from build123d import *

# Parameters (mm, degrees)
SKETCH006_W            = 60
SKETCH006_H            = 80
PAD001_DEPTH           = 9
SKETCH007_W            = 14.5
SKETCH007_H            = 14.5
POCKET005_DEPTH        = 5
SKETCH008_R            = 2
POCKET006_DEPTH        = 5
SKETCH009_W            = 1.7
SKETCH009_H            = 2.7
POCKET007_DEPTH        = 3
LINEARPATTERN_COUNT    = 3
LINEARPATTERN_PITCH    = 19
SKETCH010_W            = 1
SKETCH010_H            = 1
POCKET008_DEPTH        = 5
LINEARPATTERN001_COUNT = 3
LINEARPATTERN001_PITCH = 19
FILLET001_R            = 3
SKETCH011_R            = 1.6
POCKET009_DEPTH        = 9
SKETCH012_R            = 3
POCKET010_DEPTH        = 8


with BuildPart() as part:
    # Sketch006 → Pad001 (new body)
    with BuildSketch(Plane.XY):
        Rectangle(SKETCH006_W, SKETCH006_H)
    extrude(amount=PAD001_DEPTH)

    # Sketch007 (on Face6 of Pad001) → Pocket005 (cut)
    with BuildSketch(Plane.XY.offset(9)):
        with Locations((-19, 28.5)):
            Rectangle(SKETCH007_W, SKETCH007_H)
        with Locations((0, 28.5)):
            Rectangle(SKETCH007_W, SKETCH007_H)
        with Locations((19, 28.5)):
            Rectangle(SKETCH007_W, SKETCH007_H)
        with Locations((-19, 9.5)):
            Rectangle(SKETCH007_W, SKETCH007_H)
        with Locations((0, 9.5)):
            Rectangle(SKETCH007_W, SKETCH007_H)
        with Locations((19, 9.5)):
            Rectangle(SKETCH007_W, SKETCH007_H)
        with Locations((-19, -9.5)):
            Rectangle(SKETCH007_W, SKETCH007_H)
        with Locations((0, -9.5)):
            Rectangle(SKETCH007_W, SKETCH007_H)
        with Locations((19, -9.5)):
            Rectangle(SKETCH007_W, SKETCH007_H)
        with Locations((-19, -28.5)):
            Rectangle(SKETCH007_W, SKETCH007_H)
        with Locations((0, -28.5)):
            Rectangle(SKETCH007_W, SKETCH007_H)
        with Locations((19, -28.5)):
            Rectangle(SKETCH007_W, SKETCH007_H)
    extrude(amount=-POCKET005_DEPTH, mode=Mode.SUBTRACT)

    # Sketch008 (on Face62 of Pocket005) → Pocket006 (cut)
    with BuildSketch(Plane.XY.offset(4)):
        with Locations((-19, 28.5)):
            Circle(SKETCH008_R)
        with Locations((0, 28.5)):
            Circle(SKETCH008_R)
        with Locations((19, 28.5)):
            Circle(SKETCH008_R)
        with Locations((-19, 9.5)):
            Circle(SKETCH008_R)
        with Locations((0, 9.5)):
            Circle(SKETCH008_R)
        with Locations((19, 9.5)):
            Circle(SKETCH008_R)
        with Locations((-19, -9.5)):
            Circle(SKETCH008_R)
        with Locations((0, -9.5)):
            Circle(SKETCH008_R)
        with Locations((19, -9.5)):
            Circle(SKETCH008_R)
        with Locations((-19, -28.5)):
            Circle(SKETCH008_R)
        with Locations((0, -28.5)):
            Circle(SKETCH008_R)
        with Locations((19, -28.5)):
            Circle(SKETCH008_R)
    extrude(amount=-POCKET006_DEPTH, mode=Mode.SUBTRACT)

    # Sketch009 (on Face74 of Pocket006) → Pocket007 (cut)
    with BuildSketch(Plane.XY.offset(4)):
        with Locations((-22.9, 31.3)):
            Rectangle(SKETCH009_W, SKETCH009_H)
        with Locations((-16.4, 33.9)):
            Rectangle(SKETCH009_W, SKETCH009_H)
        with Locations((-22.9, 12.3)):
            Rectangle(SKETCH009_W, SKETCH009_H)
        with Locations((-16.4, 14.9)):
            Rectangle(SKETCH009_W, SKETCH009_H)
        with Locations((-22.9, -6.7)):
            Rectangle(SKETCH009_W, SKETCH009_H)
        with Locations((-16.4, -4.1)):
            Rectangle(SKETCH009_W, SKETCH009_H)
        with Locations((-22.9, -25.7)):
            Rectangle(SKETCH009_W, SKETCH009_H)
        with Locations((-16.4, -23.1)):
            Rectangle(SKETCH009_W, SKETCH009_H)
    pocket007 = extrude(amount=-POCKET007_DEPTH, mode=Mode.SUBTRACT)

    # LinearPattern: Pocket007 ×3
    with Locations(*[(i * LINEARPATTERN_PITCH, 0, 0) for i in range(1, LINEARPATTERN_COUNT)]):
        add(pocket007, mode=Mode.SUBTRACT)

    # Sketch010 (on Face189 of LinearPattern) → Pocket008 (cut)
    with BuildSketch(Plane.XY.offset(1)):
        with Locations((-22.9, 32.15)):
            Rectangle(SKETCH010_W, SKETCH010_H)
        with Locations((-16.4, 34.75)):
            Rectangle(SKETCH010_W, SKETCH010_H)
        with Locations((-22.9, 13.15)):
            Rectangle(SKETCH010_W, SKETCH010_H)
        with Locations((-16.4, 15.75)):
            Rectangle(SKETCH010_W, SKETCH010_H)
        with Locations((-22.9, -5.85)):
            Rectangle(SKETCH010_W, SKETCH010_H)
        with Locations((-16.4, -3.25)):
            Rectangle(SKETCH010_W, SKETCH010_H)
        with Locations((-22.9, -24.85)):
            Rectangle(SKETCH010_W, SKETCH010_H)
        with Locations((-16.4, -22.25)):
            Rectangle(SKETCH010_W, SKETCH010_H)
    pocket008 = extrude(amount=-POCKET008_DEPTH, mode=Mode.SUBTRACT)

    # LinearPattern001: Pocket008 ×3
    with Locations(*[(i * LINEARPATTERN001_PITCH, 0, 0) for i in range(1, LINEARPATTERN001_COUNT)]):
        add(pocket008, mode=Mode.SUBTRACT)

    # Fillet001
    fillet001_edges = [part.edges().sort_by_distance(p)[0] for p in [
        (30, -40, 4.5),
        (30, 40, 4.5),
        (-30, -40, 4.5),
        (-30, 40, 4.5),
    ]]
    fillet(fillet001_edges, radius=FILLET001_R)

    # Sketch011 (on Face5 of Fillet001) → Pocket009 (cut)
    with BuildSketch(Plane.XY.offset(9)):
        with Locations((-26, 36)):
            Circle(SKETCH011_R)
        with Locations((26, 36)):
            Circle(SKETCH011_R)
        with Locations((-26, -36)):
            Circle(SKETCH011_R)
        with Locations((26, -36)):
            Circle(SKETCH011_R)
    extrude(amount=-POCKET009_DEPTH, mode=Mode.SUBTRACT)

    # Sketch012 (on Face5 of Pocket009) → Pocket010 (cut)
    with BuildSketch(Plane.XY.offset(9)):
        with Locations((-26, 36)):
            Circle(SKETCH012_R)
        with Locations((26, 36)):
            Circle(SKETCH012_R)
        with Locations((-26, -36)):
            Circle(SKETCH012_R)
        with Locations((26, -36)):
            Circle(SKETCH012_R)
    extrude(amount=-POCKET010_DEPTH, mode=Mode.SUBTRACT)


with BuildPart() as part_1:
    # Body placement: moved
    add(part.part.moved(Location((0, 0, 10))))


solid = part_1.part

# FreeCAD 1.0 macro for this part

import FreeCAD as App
import Part
import Sketcher

V = App.Vector
Q = App.Units.Quantity


def edges_at(feature, points):
    """Names of the edges that pass closest to the given points."""
    edges = feature.Shape.Edges
    near = lambda p: min(range(len(edges)), key=lambda i: edges[i].distToShape(Part.Vertex(*p))[0])
    return sorted({f"Edge{near(p) + 1}" for p in points})

doc = App.newDocument("Part")
body = doc.addObject("PartDesign::Body", "Body")

# Sketch on XY plane
sketch1 = body.newObject("Sketcher::SketchObject", "Sketch")
sketch1.AttachmentSupport = (doc.getObject("XY_Plane"), [""])
sketch1.MapMode = "FlatFace"
sketch1.addGeometry(Part.LineSegment(V(-30, 40, 0), V(-30, -40, 0)), False)
sketch1.addGeometry(Part.LineSegment(V(-30, -40, 0), V(30, -40, 0)), False)
sketch1.addGeometry(Part.LineSegment(V(30, -40, 0), V(30, 40, 0)), False)
sketch1.addGeometry(Part.LineSegment(V(30, 40, 0), V(-30, 40, 0)), False)
sketch1.addConstraint(Sketcher.Constraint("Coincident", 0, 2, 1, 1))
sketch1.addConstraint(Sketcher.Constraint("Coincident", 1, 2, 2, 1))
sketch1.addConstraint(Sketcher.Constraint("Coincident", 2, 2, 3, 1))
sketch1.addConstraint(Sketcher.Constraint("Coincident", 3, 2, 0, 1))
sketch1.addConstraint(Sketcher.Constraint("Vertical", 0))
sketch1.addConstraint(Sketcher.Constraint("Horizontal", 1))
sketch1.addConstraint(Sketcher.Constraint("Vertical", 2))
sketch1.addConstraint(Sketcher.Constraint("Horizontal", 3))
sketch1.addConstraint(Sketcher.Constraint("Symmetric", 0, 2, 2, 2, -1, 1))
sketch1.addConstraint(Sketcher.Constraint("DistanceX", 1, 1, 1, 2, Q("60 mm")))
sketch1.addConstraint(Sketcher.Constraint("DistanceY", 0, 2, 0, 1, Q("80 mm")))
pad1 = body.newObject("PartDesign::Pad", "Pad")
pad1.Profile = sketch1
pad1.Length = 9

# Sketch on XY plane
sketch2 = body.newObject("Sketcher::SketchObject", "Sketch001")
sketch2.AttachmentSupport = (doc.getObject("XY_Plane"), [""])
sketch2.MapMode = "FlatFace"
sketch2.AttachmentOffset = App.Placement(V(0, 0, 9), App.Rotation())
sketch2.addGeometry(Part.LineSegment(V(-26.25, 35.75, 0), V(-26.25, 21.25, 0)), False)
sketch2.addGeometry(Part.LineSegment(V(-26.25, 21.25, 0), V(-11.75, 21.25, 0)), False)
sketch2.addGeometry(Part.LineSegment(V(-11.75, 21.25, 0), V(-11.75, 35.75, 0)), False)
sketch2.addGeometry(Part.LineSegment(V(-11.75, 35.75, 0), V(-26.25, 35.75, 0)), False)
sketch2.addGeometry(Part.LineSegment(V(-7.25, 35.75, 0), V(-7.25, 21.25, 0)), False)
sketch2.addGeometry(Part.LineSegment(V(-7.25, 21.25, 0), V(7.25, 21.25, 0)), False)
sketch2.addGeometry(Part.LineSegment(V(7.25, 21.25, 0), V(7.25, 35.75, 0)), False)
sketch2.addGeometry(Part.LineSegment(V(7.25, 35.75, 0), V(-7.25, 35.75, 0)), False)
sketch2.addGeometry(Part.LineSegment(V(11.75, 35.75, 0), V(11.75, 21.25, 0)), False)
sketch2.addGeometry(Part.LineSegment(V(11.75, 21.25, 0), V(26.25, 21.25, 0)), False)
sketch2.addGeometry(Part.LineSegment(V(26.25, 21.25, 0), V(26.25, 35.75, 0)), False)
sketch2.addGeometry(Part.LineSegment(V(26.25, 35.75, 0), V(11.75, 35.75, 0)), False)
sketch2.addGeometry(Part.LineSegment(V(-26.25, 16.75, 0), V(-26.25, 2.25, 0)), False)
sketch2.addGeometry(Part.LineSegment(V(-26.25, 2.25, 0), V(-11.75, 2.25, 0)), False)
sketch2.addGeometry(Part.LineSegment(V(-11.75, 2.25, 0), V(-11.75, 16.75, 0)), False)
sketch2.addGeometry(Part.LineSegment(V(-11.75, 16.75, 0), V(-26.25, 16.75, 0)), False)
sketch2.addGeometry(Part.LineSegment(V(-7.25, 16.75, 0), V(-7.25, 2.25, 0)), False)
sketch2.addGeometry(Part.LineSegment(V(-7.25, 2.25, 0), V(7.25, 2.25, 0)), False)
sketch2.addGeometry(Part.LineSegment(V(7.25, 2.25, 0), V(7.25, 16.75, 0)), False)
sketch2.addGeometry(Part.LineSegment(V(7.25, 16.75, 0), V(-7.25, 16.75, 0)), False)
sketch2.addGeometry(Part.LineSegment(V(11.75, 16.75, 0), V(11.75, 2.25, 0)), False)
sketch2.addGeometry(Part.LineSegment(V(11.75, 2.25, 0), V(26.25, 2.25, 0)), False)
sketch2.addGeometry(Part.LineSegment(V(26.25, 2.25, 0), V(26.25, 16.75, 0)), False)
sketch2.addGeometry(Part.LineSegment(V(26.25, 16.75, 0), V(11.75, 16.75, 0)), False)
sketch2.addGeometry(Part.LineSegment(V(-26.25, -2.25, 0), V(-26.25, -16.75, 0)), False)
sketch2.addGeometry(Part.LineSegment(V(-26.25, -16.75, 0), V(-11.75, -16.75, 0)), False)
sketch2.addGeometry(Part.LineSegment(V(-11.75, -16.75, 0), V(-11.75, -2.25, 0)), False)
sketch2.addGeometry(Part.LineSegment(V(-11.75, -2.25, 0), V(-26.25, -2.25, 0)), False)
sketch2.addGeometry(Part.LineSegment(V(-7.25, -2.25, 0), V(-7.25, -16.75, 0)), False)
sketch2.addGeometry(Part.LineSegment(V(-7.25, -16.75, 0), V(7.25, -16.75, 0)), False)
sketch2.addGeometry(Part.LineSegment(V(7.25, -16.75, 0), V(7.25, -2.25, 0)), False)
sketch2.addGeometry(Part.LineSegment(V(7.25, -2.25, 0), V(-7.25, -2.25, 0)), False)
sketch2.addGeometry(Part.LineSegment(V(11.75, -2.25, 0), V(11.75, -16.75, 0)), False)
sketch2.addGeometry(Part.LineSegment(V(11.75, -16.75, 0), V(26.25, -16.75, 0)), False)
sketch2.addGeometry(Part.LineSegment(V(26.25, -16.75, 0), V(26.25, -2.25, 0)), False)
sketch2.addGeometry(Part.LineSegment(V(26.25, -2.25, 0), V(11.75, -2.25, 0)), False)
sketch2.addGeometry(Part.LineSegment(V(-26.25, -21.25, 0), V(-26.25, -35.75, 0)), False)
sketch2.addGeometry(Part.LineSegment(V(-26.25, -35.75, 0), V(-11.75, -35.75, 0)), False)
sketch2.addGeometry(Part.LineSegment(V(-11.75, -35.75, 0), V(-11.75, -21.25, 0)), False)
sketch2.addGeometry(Part.LineSegment(V(-11.75, -21.25, 0), V(-26.25, -21.25, 0)), False)
sketch2.addGeometry(Part.LineSegment(V(-7.25, -21.25, 0), V(-7.25, -35.75, 0)), False)
sketch2.addGeometry(Part.LineSegment(V(-7.25, -35.75, 0), V(7.25, -35.75, 0)), False)
sketch2.addGeometry(Part.LineSegment(V(7.25, -35.75, 0), V(7.25, -21.25, 0)), False)
sketch2.addGeometry(Part.LineSegment(V(7.25, -21.25, 0), V(-7.25, -21.25, 0)), False)
sketch2.addGeometry(Part.LineSegment(V(11.75, -21.25, 0), V(11.75, -35.75, 0)), False)
sketch2.addGeometry(Part.LineSegment(V(11.75, -35.75, 0), V(26.25, -35.75, 0)), False)
sketch2.addGeometry(Part.LineSegment(V(26.25, -35.75, 0), V(26.25, -21.25, 0)), False)
sketch2.addGeometry(Part.LineSegment(V(26.25, -21.25, 0), V(11.75, -21.25, 0)), False)
sketch2.addConstraint(Sketcher.Constraint("Coincident", 0, 2, 1, 1))
sketch2.addConstraint(Sketcher.Constraint("Coincident", 1, 2, 2, 1))
sketch2.addConstraint(Sketcher.Constraint("Coincident", 2, 2, 3, 1))
sketch2.addConstraint(Sketcher.Constraint("Coincident", 3, 2, 0, 1))
sketch2.addConstraint(Sketcher.Constraint("Coincident", 4, 2, 5, 1))
sketch2.addConstraint(Sketcher.Constraint("Coincident", 5, 2, 6, 1))
sketch2.addConstraint(Sketcher.Constraint("Coincident", 6, 2, 7, 1))
sketch2.addConstraint(Sketcher.Constraint("Coincident", 7, 2, 4, 1))
sketch2.addConstraint(Sketcher.Constraint("Coincident", 8, 2, 9, 1))
sketch2.addConstraint(Sketcher.Constraint("Coincident", 9, 2, 10, 1))
sketch2.addConstraint(Sketcher.Constraint("Coincident", 10, 2, 11, 1))
sketch2.addConstraint(Sketcher.Constraint("Coincident", 11, 2, 8, 1))
sketch2.addConstraint(Sketcher.Constraint("Coincident", 12, 2, 13, 1))
sketch2.addConstraint(Sketcher.Constraint("Coincident", 13, 2, 14, 1))
sketch2.addConstraint(Sketcher.Constraint("Coincident", 14, 2, 15, 1))
sketch2.addConstraint(Sketcher.Constraint("Coincident", 15, 2, 12, 1))
sketch2.addConstraint(Sketcher.Constraint("Coincident", 16, 2, 17, 1))
sketch2.addConstraint(Sketcher.Constraint("Coincident", 17, 2, 18, 1))
sketch2.addConstraint(Sketcher.Constraint("Coincident", 18, 2, 19, 1))
sketch2.addConstraint(Sketcher.Constraint("Coincident", 19, 2, 16, 1))
sketch2.addConstraint(Sketcher.Constraint("Coincident", 20, 2, 21, 1))
sketch2.addConstraint(Sketcher.Constraint("Coincident", 21, 2, 22, 1))
sketch2.addConstraint(Sketcher.Constraint("Coincident", 22, 2, 23, 1))
sketch2.addConstraint(Sketcher.Constraint("Coincident", 23, 2, 20, 1))
sketch2.addConstraint(Sketcher.Constraint("Coincident", 24, 2, 25, 1))
sketch2.addConstraint(Sketcher.Constraint("Coincident", 25, 2, 26, 1))
sketch2.addConstraint(Sketcher.Constraint("Coincident", 26, 2, 27, 1))
sketch2.addConstraint(Sketcher.Constraint("Coincident", 27, 2, 24, 1))
sketch2.addConstraint(Sketcher.Constraint("Coincident", 28, 2, 29, 1))
sketch2.addConstraint(Sketcher.Constraint("Coincident", 29, 2, 30, 1))
sketch2.addConstraint(Sketcher.Constraint("Coincident", 30, 2, 31, 1))
sketch2.addConstraint(Sketcher.Constraint("Coincident", 31, 2, 28, 1))
sketch2.addConstraint(Sketcher.Constraint("Coincident", 32, 2, 33, 1))
sketch2.addConstraint(Sketcher.Constraint("Coincident", 33, 2, 34, 1))
sketch2.addConstraint(Sketcher.Constraint("Coincident", 34, 2, 35, 1))
sketch2.addConstraint(Sketcher.Constraint("Coincident", 35, 2, 32, 1))
sketch2.addConstraint(Sketcher.Constraint("Coincident", 36, 2, 37, 1))
sketch2.addConstraint(Sketcher.Constraint("Coincident", 37, 2, 38, 1))
sketch2.addConstraint(Sketcher.Constraint("Coincident", 38, 2, 39, 1))
sketch2.addConstraint(Sketcher.Constraint("Coincident", 39, 2, 36, 1))
sketch2.addConstraint(Sketcher.Constraint("Coincident", 40, 2, 41, 1))
sketch2.addConstraint(Sketcher.Constraint("Coincident", 41, 2, 42, 1))
sketch2.addConstraint(Sketcher.Constraint("Coincident", 42, 2, 43, 1))
sketch2.addConstraint(Sketcher.Constraint("Coincident", 43, 2, 40, 1))
sketch2.addConstraint(Sketcher.Constraint("Coincident", 44, 2, 45, 1))
sketch2.addConstraint(Sketcher.Constraint("Coincident", 45, 2, 46, 1))
sketch2.addConstraint(Sketcher.Constraint("Coincident", 46, 2, 47, 1))
sketch2.addConstraint(Sketcher.Constraint("Coincident", 47, 2, 44, 1))
sketch2.addConstraint(Sketcher.Constraint("Vertical", 0))
sketch2.addConstraint(Sketcher.Constraint("Horizontal", 1))
sketch2.addConstraint(Sketcher.Constraint("Vertical", 2))
sketch2.addConstraint(Sketcher.Constraint("Horizontal", 3))
sketch2.addConstraint(Sketcher.Constraint("Vertical", 4))
sketch2.addConstraint(Sketcher.Constraint("Horizontal", 5))
sketch2.addConstraint(Sketcher.Constraint("Vertical", 6))
sketch2.addConstraint(Sketcher.Constraint("Horizontal", 7))
sketch2.addConstraint(Sketcher.Constraint("Vertical", 8))
sketch2.addConstraint(Sketcher.Constraint("Horizontal", 9))
sketch2.addConstraint(Sketcher.Constraint("Vertical", 10))
sketch2.addConstraint(Sketcher.Constraint("Horizontal", 11))
sketch2.addConstraint(Sketcher.Constraint("Vertical", 12))
sketch2.addConstraint(Sketcher.Constraint("Horizontal", 13))
sketch2.addConstraint(Sketcher.Constraint("Vertical", 14))
sketch2.addConstraint(Sketcher.Constraint("Horizontal", 15))
sketch2.addConstraint(Sketcher.Constraint("Vertical", 16))
sketch2.addConstraint(Sketcher.Constraint("Horizontal", 17))
sketch2.addConstraint(Sketcher.Constraint("Vertical", 18))
sketch2.addConstraint(Sketcher.Constraint("Horizontal", 19))
sketch2.addConstraint(Sketcher.Constraint("Vertical", 20))
sketch2.addConstraint(Sketcher.Constraint("Horizontal", 21))
sketch2.addConstraint(Sketcher.Constraint("Vertical", 22))
sketch2.addConstraint(Sketcher.Constraint("Horizontal", 23))
sketch2.addConstraint(Sketcher.Constraint("Vertical", 24))
sketch2.addConstraint(Sketcher.Constraint("Horizontal", 25))
sketch2.addConstraint(Sketcher.Constraint("Vertical", 26))
sketch2.addConstraint(Sketcher.Constraint("Horizontal", 27))
sketch2.addConstraint(Sketcher.Constraint("Vertical", 28))
sketch2.addConstraint(Sketcher.Constraint("Horizontal", 29))
sketch2.addConstraint(Sketcher.Constraint("Vertical", 30))
sketch2.addConstraint(Sketcher.Constraint("Horizontal", 31))
sketch2.addConstraint(Sketcher.Constraint("Vertical", 32))
sketch2.addConstraint(Sketcher.Constraint("Horizontal", 33))
sketch2.addConstraint(Sketcher.Constraint("Vertical", 34))
sketch2.addConstraint(Sketcher.Constraint("Horizontal", 35))
sketch2.addConstraint(Sketcher.Constraint("Vertical", 36))
sketch2.addConstraint(Sketcher.Constraint("Horizontal", 37))
sketch2.addConstraint(Sketcher.Constraint("Vertical", 38))
sketch2.addConstraint(Sketcher.Constraint("Horizontal", 39))
sketch2.addConstraint(Sketcher.Constraint("Vertical", 40))
sketch2.addConstraint(Sketcher.Constraint("Horizontal", 41))
sketch2.addConstraint(Sketcher.Constraint("Vertical", 42))
sketch2.addConstraint(Sketcher.Constraint("Horizontal", 43))
sketch2.addConstraint(Sketcher.Constraint("Vertical", 44))
sketch2.addConstraint(Sketcher.Constraint("Horizontal", 45))
sketch2.addConstraint(Sketcher.Constraint("Vertical", 46))
sketch2.addConstraint(Sketcher.Constraint("Horizontal", 47))
sketch2.addConstraint(Sketcher.Constraint("Symmetric", 22, 2, 24, 2, -1, 1))
sketch2.addConstraint(Sketcher.Constraint("Symmetric", 20, 2, 26, 2, -1, 1))
sketch2.addConstraint(Sketcher.Constraint("Symmetric", 18, 2, 28, 2, -1, 1))
sketch2.addConstraint(Sketcher.Constraint("Symmetric", 16, 2, 30, 2, -1, 1))
sketch2.addConstraint(Sketcher.Constraint("Symmetric", 14, 2, 32, 2, -1, 1))
sketch2.addConstraint(Sketcher.Constraint("Symmetric", 12, 2, 34, 2, -1, 1))
sketch2.addConstraint(Sketcher.Constraint("Symmetric", 10, 2, 36, 2, -1, 1))
sketch2.addConstraint(Sketcher.Constraint("Symmetric", 8, 2, 38, 2, -1, 1))
sketch2.addConstraint(Sketcher.Constraint("Symmetric", 6, 2, 40, 2, -1, 1))
sketch2.addConstraint(Sketcher.Constraint("Symmetric", 4, 2, 42, 2, -1, 1))
sketch2.addConstraint(Sketcher.Constraint("Symmetric", 2, 2, 44, 2, -1, 1))
sketch2.addConstraint(Sketcher.Constraint("Symmetric", 0, 2, 46, 2, -1, 1))
sketch2.addConstraint(Sketcher.Constraint("Symmetric", 1, 2, 8, 2, -2))
sketch2.addConstraint(Sketcher.Constraint("Symmetric", 3, 2, 10, 2, -2))
sketch2.addConstraint(Sketcher.Constraint("Symmetric", 13, 2, 20, 2, -2))
sketch2.addConstraint(Sketcher.Constraint("Symmetric", 15, 2, 22, 2, -2))
sketch2.addConstraint(Sketcher.Constraint("Horizontal", 1, 2, 4, 2))
sketch2.addConstraint(Sketcher.Constraint("Horizontal", 3, 2, 6, 2))
sketch2.addConstraint(Sketcher.Constraint("Horizontal", 13, 2, 16, 2))
sketch2.addConstraint(Sketcher.Constraint("Horizontal", 15, 2, 18, 2))
sketch2.addConstraint(Sketcher.Constraint("Vertical", 3, 2, 12, 2))
sketch2.addConstraint(Sketcher.Constraint("Vertical", 2, 2, 13, 2))
sketch2.addConstraint(Sketcher.Constraint("Vertical", 7, 2, 16, 2))
sketch2.addConstraint(Sketcher.Constraint("Vertical", 6, 2, 17, 2))
sketch2.addConstraint(Sketcher.Constraint("Vertical", 19, 2, 28, 2))
sketch2.addConstraint(Sketcher.Constraint("Equal", 3, 5))
sketch2.addConstraint(Sketcher.Constraint("Equal", 47, 0))
sketch2.addConstraint(Sketcher.Constraint("Equal", 10, 12))
sketch2.addConstraint(Sketcher.Constraint("DistanceX", 1, 1, 1, 2, Q("14.5 mm")))
sketch2.addConstraint(Sketcher.Constraint("DistanceX", 0, 2, 4, 2, Q("19 mm")))
sketch2.addConstraint(Sketcher.Constraint("DistanceY", 12, 2, 0, 2, Q("19 mm")))
sketch2.addConstraint(Sketcher.Constraint("DistanceY", 24, 2, 12, 2, Q("19 mm")))
pocket1 = body.newObject("PartDesign::Pocket", "Pocket")
pocket1.Profile = sketch2
pocket1.Length = 5

# Sketch on XY plane
sketch3 = body.newObject("Sketcher::SketchObject", "Sketch002")
sketch3.AttachmentSupport = (doc.getObject("XY_Plane"), [""])
sketch3.MapMode = "FlatFace"
sketch3.AttachmentOffset = App.Placement(V(0, 0, 4), App.Rotation())
sketch3.addGeometry(Part.Circle(V(-19, 28.5, 0), V(0, 0, 1), 2), False)
sketch3.addGeometry(Part.Circle(V(0, 28.5, 0), V(0, 0, 1), 2), False)
sketch3.addGeometry(Part.Circle(V(19, 28.5, 0), V(0, 0, 1), 2), False)
sketch3.addGeometry(Part.Circle(V(-19, 9.5, 0), V(0, 0, 1), 2), False)
sketch3.addGeometry(Part.Circle(V(0, 9.5, 0), V(0, 0, 1), 2), False)
sketch3.addGeometry(Part.Circle(V(19, 9.5, 0), V(0, 0, 1), 2), False)
sketch3.addGeometry(Part.Circle(V(-19, -9.5, 0), V(0, 0, 1), 2), False)
sketch3.addGeometry(Part.Circle(V(0, -9.5, 0), V(0, 0, 1), 2), False)
sketch3.addGeometry(Part.Circle(V(19, -9.5, 0), V(0, 0, 1), 2), False)
sketch3.addGeometry(Part.Circle(V(-19, -28.5, 0), V(0, 0, 1), 2), False)
sketch3.addGeometry(Part.Circle(V(0, -28.5, 0), V(0, 0, 1), 2), False)
sketch3.addGeometry(Part.Circle(V(19, -28.5, 0), V(0, 0, 1), 2), False)
sketch3.addConstraint(Sketcher.Constraint("Equal", 0, 1))
sketch3.addConstraint(Sketcher.Constraint("Equal", 1, 2))
sketch3.addConstraint(Sketcher.Constraint("Equal", 2, 3))
sketch3.addConstraint(Sketcher.Constraint("Equal", 3, 4))
sketch3.addConstraint(Sketcher.Constraint("Equal", 4, 5))
sketch3.addConstraint(Sketcher.Constraint("Equal", 5, 6))
sketch3.addConstraint(Sketcher.Constraint("Equal", 6, 7))
sketch3.addConstraint(Sketcher.Constraint("Equal", 7, 8))
sketch3.addConstraint(Sketcher.Constraint("Equal", 8, 9))
sketch3.addConstraint(Sketcher.Constraint("Equal", 9, 10))
sketch3.addConstraint(Sketcher.Constraint("Equal", 10, 11))
sketch3.addConstraint(Sketcher.Constraint("Symmetric", 5, 3, 6, 3, -1, 1))
sketch3.addConstraint(Sketcher.Constraint("Symmetric", 4, 3, 7, 3, -1, 1))
sketch3.addConstraint(Sketcher.Constraint("Symmetric", 3, 3, 8, 3, -1, 1))
sketch3.addConstraint(Sketcher.Constraint("Symmetric", 2, 3, 9, 3, -1, 1))
sketch3.addConstraint(Sketcher.Constraint("Symmetric", 1, 3, 10, 3, -1, 1))
sketch3.addConstraint(Sketcher.Constraint("Symmetric", 0, 3, 11, 3, -1, 1))
sketch3.addConstraint(Sketcher.Constraint("Symmetric", 0, 3, 2, 3, -2))
sketch3.addConstraint(Sketcher.Constraint("Symmetric", 3, 3, 5, 3, -2))
sketch3.addConstraint(Sketcher.Constraint("PointOnObject", 1, 3, -2))
sketch3.addConstraint(Sketcher.Constraint("PointOnObject", 4, 3, -2))
sketch3.addConstraint(Sketcher.Constraint("Horizontal", 0, 3, 1, 3))
sketch3.addConstraint(Sketcher.Constraint("Horizontal", 3, 3, 4, 3))
sketch3.addConstraint(Sketcher.Constraint("Vertical", 0, 3, 3, 3))
sketch3.addConstraint(Sketcher.Constraint("Diameter", 0, Q("4 mm")))
sketch3.addConstraint(Sketcher.Constraint("DistanceX", 0, 3, -1, 1, Q("19 mm")))
sketch3.addConstraint(Sketcher.Constraint("DistanceY", 3, 3, 0, 3, Q("19 mm")))
sketch3.addConstraint(Sketcher.Constraint("DistanceY", 6, 3, 3, 3, Q("19 mm")))
pocket2 = body.newObject("PartDesign::Pocket", "Pocket001")
pocket2.Profile = sketch3
pocket2.Length = 5

# Sketch on XY plane
sketch4 = body.newObject("Sketcher::SketchObject", "Sketch003")
sketch4.AttachmentSupport = (doc.getObject("XY_Plane"), [""])
sketch4.MapMode = "FlatFace"
sketch4.AttachmentOffset = App.Placement(V(0, 0, 4), App.Rotation())
sketch4.addGeometry(Part.LineSegment(V(-23.75, 32.65, 0), V(-23.75, 29.95, 0)), False)
sketch4.addGeometry(Part.LineSegment(V(-23.75, 29.95, 0), V(-22.05, 29.95, 0)), False)
sketch4.addGeometry(Part.LineSegment(V(-22.05, 29.95, 0), V(-22.05, 32.65, 0)), False)
sketch4.addGeometry(Part.LineSegment(V(-22.05, 32.65, 0), V(-23.75, 32.65, 0)), False)
sketch4.addGeometry(Part.LineSegment(V(-17.25, 35.25, 0), V(-17.25, 32.55, 0)), False)
sketch4.addGeometry(Part.LineSegment(V(-17.25, 32.55, 0), V(-15.55, 32.55, 0)), False)
sketch4.addGeometry(Part.LineSegment(V(-15.55, 32.55, 0), V(-15.55, 35.25, 0)), False)
sketch4.addGeometry(Part.LineSegment(V(-15.55, 35.25, 0), V(-17.25, 35.25, 0)), False)
sketch4.addGeometry(Part.LineSegment(V(-23.75, 13.65, 0), V(-23.75, 10.95, 0)), False)
sketch4.addGeometry(Part.LineSegment(V(-23.75, 10.95, 0), V(-22.05, 10.95, 0)), False)
sketch4.addGeometry(Part.LineSegment(V(-22.05, 10.95, 0), V(-22.05, 13.65, 0)), False)
sketch4.addGeometry(Part.LineSegment(V(-22.05, 13.65, 0), V(-23.75, 13.65, 0)), False)
sketch4.addGeometry(Part.LineSegment(V(-17.25, 16.25, 0), V(-17.25, 13.55, 0)), False)
sketch4.addGeometry(Part.LineSegment(V(-17.25, 13.55, 0), V(-15.55, 13.55, 0)), False)
sketch4.addGeometry(Part.LineSegment(V(-15.55, 13.55, 0), V(-15.55, 16.25, 0)), False)
sketch4.addGeometry(Part.LineSegment(V(-15.55, 16.25, 0), V(-17.25, 16.25, 0)), False)
sketch4.addGeometry(Part.LineSegment(V(-23.75, -5.35, 0), V(-23.75, -8.05, 0)), False)
sketch4.addGeometry(Part.LineSegment(V(-23.75, -8.05, 0), V(-22.05, -8.05, 0)), False)
sketch4.addGeometry(Part.LineSegment(V(-22.05, -8.05, 0), V(-22.05, -5.35, 0)), False)
sketch4.addGeometry(Part.LineSegment(V(-22.05, -5.35, 0), V(-23.75, -5.35, 0)), False)
sketch4.addGeometry(Part.LineSegment(V(-17.25, -2.75, 0), V(-17.25, -5.45, 0)), False)
sketch4.addGeometry(Part.LineSegment(V(-17.25, -5.45, 0), V(-15.55, -5.45, 0)), False)
sketch4.addGeometry(Part.LineSegment(V(-15.55, -5.45, 0), V(-15.55, -2.75, 0)), False)
sketch4.addGeometry(Part.LineSegment(V(-15.55, -2.75, 0), V(-17.25, -2.75, 0)), False)
sketch4.addGeometry(Part.LineSegment(V(-23.75, -24.35, 0), V(-23.75, -27.05, 0)), False)
sketch4.addGeometry(Part.LineSegment(V(-23.75, -27.05, 0), V(-22.05, -27.05, 0)), False)
sketch4.addGeometry(Part.LineSegment(V(-22.05, -27.05, 0), V(-22.05, -24.35, 0)), False)
sketch4.addGeometry(Part.LineSegment(V(-22.05, -24.35, 0), V(-23.75, -24.35, 0)), False)
sketch4.addGeometry(Part.LineSegment(V(-17.25, -21.75, 0), V(-17.25, -24.45, 0)), False)
sketch4.addGeometry(Part.LineSegment(V(-17.25, -24.45, 0), V(-15.55, -24.45, 0)), False)
sketch4.addGeometry(Part.LineSegment(V(-15.55, -24.45, 0), V(-15.55, -21.75, 0)), False)
sketch4.addGeometry(Part.LineSegment(V(-15.55, -21.75, 0), V(-17.25, -21.75, 0)), False)
sketch4.addConstraint(Sketcher.Constraint("Coincident", 0, 2, 1, 1))
sketch4.addConstraint(Sketcher.Constraint("Coincident", 1, 2, 2, 1))
sketch4.addConstraint(Sketcher.Constraint("Coincident", 2, 2, 3, 1))
sketch4.addConstraint(Sketcher.Constraint("Coincident", 3, 2, 0, 1))
sketch4.addConstraint(Sketcher.Constraint("Coincident", 4, 2, 5, 1))
sketch4.addConstraint(Sketcher.Constraint("Coincident", 5, 2, 6, 1))
sketch4.addConstraint(Sketcher.Constraint("Coincident", 6, 2, 7, 1))
sketch4.addConstraint(Sketcher.Constraint("Coincident", 7, 2, 4, 1))
sketch4.addConstraint(Sketcher.Constraint("Coincident", 8, 2, 9, 1))
sketch4.addConstraint(Sketcher.Constraint("Coincident", 9, 2, 10, 1))
sketch4.addConstraint(Sketcher.Constraint("Coincident", 10, 2, 11, 1))
sketch4.addConstraint(Sketcher.Constraint("Coincident", 11, 2, 8, 1))
sketch4.addConstraint(Sketcher.Constraint("Coincident", 12, 2, 13, 1))
sketch4.addConstraint(Sketcher.Constraint("Coincident", 13, 2, 14, 1))
sketch4.addConstraint(Sketcher.Constraint("Coincident", 14, 2, 15, 1))
sketch4.addConstraint(Sketcher.Constraint("Coincident", 15, 2, 12, 1))
sketch4.addConstraint(Sketcher.Constraint("Coincident", 16, 2, 17, 1))
sketch4.addConstraint(Sketcher.Constraint("Coincident", 17, 2, 18, 1))
sketch4.addConstraint(Sketcher.Constraint("Coincident", 18, 2, 19, 1))
sketch4.addConstraint(Sketcher.Constraint("Coincident", 19, 2, 16, 1))
sketch4.addConstraint(Sketcher.Constraint("Coincident", 20, 2, 21, 1))
sketch4.addConstraint(Sketcher.Constraint("Coincident", 21, 2, 22, 1))
sketch4.addConstraint(Sketcher.Constraint("Coincident", 22, 2, 23, 1))
sketch4.addConstraint(Sketcher.Constraint("Coincident", 23, 2, 20, 1))
sketch4.addConstraint(Sketcher.Constraint("Coincident", 24, 2, 25, 1))
sketch4.addConstraint(Sketcher.Constraint("Coincident", 25, 2, 26, 1))
sketch4.addConstraint(Sketcher.Constraint("Coincident", 26, 2, 27, 1))
sketch4.addConstraint(Sketcher.Constraint("Coincident", 27, 2, 24, 1))
sketch4.addConstraint(Sketcher.Constraint("Coincident", 28, 2, 29, 1))
sketch4.addConstraint(Sketcher.Constraint("Coincident", 29, 2, 30, 1))
sketch4.addConstraint(Sketcher.Constraint("Coincident", 30, 2, 31, 1))
sketch4.addConstraint(Sketcher.Constraint("Coincident", 31, 2, 28, 1))
sketch4.addConstraint(Sketcher.Constraint("Vertical", 0))
sketch4.addConstraint(Sketcher.Constraint("Horizontal", 1))
sketch4.addConstraint(Sketcher.Constraint("Vertical", 2))
sketch4.addConstraint(Sketcher.Constraint("Horizontal", 3))
sketch4.addConstraint(Sketcher.Constraint("Vertical", 4))
sketch4.addConstraint(Sketcher.Constraint("Horizontal", 5))
sketch4.addConstraint(Sketcher.Constraint("Vertical", 6))
sketch4.addConstraint(Sketcher.Constraint("Horizontal", 7))
sketch4.addConstraint(Sketcher.Constraint("Vertical", 8))
sketch4.addConstraint(Sketcher.Constraint("Horizontal", 9))
sketch4.addConstraint(Sketcher.Constraint("Vertical", 10))
sketch4.addConstraint(Sketcher.Constraint("Horizontal", 11))
sketch4.addConstraint(Sketcher.Constraint("Vertical", 12))
sketch4.addConstraint(Sketcher.Constraint("Horizontal", 13))
sketch4.addConstraint(Sketcher.Constraint("Vertical", 14))
sketch4.addConstraint(Sketcher.Constraint("Horizontal", 15))
sketch4.addConstraint(Sketcher.Constraint("Vertical", 16))
sketch4.addConstraint(Sketcher.Constraint("Horizontal", 17))
sketch4.addConstraint(Sketcher.Constraint("Vertical", 18))
sketch4.addConstraint(Sketcher.Constraint("Horizontal", 19))
sketch4.addConstraint(Sketcher.Constraint("Vertical", 20))
sketch4.addConstraint(Sketcher.Constraint("Horizontal", 21))
sketch4.addConstraint(Sketcher.Constraint("Vertical", 22))
sketch4.addConstraint(Sketcher.Constraint("Horizontal", 23))
sketch4.addConstraint(Sketcher.Constraint("Vertical", 24))
sketch4.addConstraint(Sketcher.Constraint("Horizontal", 25))
sketch4.addConstraint(Sketcher.Constraint("Vertical", 26))
sketch4.addConstraint(Sketcher.Constraint("Horizontal", 27))
sketch4.addConstraint(Sketcher.Constraint("Vertical", 28))
sketch4.addConstraint(Sketcher.Constraint("Horizontal", 29))
sketch4.addConstraint(Sketcher.Constraint("Vertical", 30))
sketch4.addConstraint(Sketcher.Constraint("Horizontal", 31))
sketch4.addConstraint(Sketcher.Constraint("Vertical", 3, 2, 8, 2))
sketch4.addConstraint(Sketcher.Constraint("Vertical", 2, 2, 9, 2))
sketch4.addConstraint(Sketcher.Constraint("Vertical", 7, 2, 12, 2))
sketch4.addConstraint(Sketcher.Constraint("Vertical", 6, 2, 13, 2))
sketch4.addConstraint(Sketcher.Constraint("Vertical", 11, 2, 16, 2))
sketch4.addConstraint(Sketcher.Constraint("Vertical", 10, 2, 17, 2))
sketch4.addConstraint(Sketcher.Constraint("Vertical", 15, 2, 20, 2))
sketch4.addConstraint(Sketcher.Constraint("Vertical", 14, 2, 21, 2))
sketch4.addConstraint(Sketcher.Constraint("Vertical", 19, 2, 24, 2))
sketch4.addConstraint(Sketcher.Constraint("Vertical", 18, 2, 25, 2))
sketch4.addConstraint(Sketcher.Constraint("Vertical", 23, 2, 28, 2))
sketch4.addConstraint(Sketcher.Constraint("Vertical", 22, 2, 29, 2))
sketch4.addConstraint(Sketcher.Constraint("Equal", 3, 5))
sketch4.addConstraint(Sketcher.Constraint("Equal", 2, 4))
sketch4.addConstraint(Sketcher.Constraint("Equal", 6, 8))
sketch4.addConstraint(Sketcher.Constraint("Equal", 10, 12))
sketch4.addConstraint(Sketcher.Constraint("Equal", 14, 16))
sketch4.addConstraint(Sketcher.Constraint("Equal", 18, 20))
sketch4.addConstraint(Sketcher.Constraint("Equal", 22, 24))
sketch4.addConstraint(Sketcher.Constraint("Equal", 26, 28))
sketch4.addConstraint(Sketcher.Constraint("DistanceX", 1, 1, 1, 2, Q("1.7 mm")))
sketch4.addConstraint(Sketcher.Constraint("DistanceY", 0, 2, 0, 1, Q("2.7 mm")))
sketch4.addConstraint(Sketcher.Constraint("DistanceY", 8, 2, 0, 2, Q("19 mm")))
sketch4.addConstraint(Sketcher.Constraint("DistanceY", 16, 2, 8, 2, Q("19 mm")))
sketch4.addConstraint(Sketcher.Constraint("DistanceY", 24, 2, 16, 2, Q("19 mm")))
sketch4.addConstraint(Sketcher.Constraint("DistanceX", 2, 2, 4, 2, Q("4.8 mm")))
sketch4.addConstraint(Sketcher.Constraint("DistanceY", 4, 2, 2, 2, Q("0.1 mm")))
sketch4.addConstraint(Sketcher.Constraint("DistanceY", 12, 2, 10, 2, Q("0.1 mm")))
sketch4.addConstraint(Sketcher.Constraint("DistanceY", 20, 2, 18, 2, Q("0.1 mm")))
sketch4.addConstraint(Sketcher.Constraint("DistanceY", 28, 2, 26, 2, Q("0.1 mm")))
sketch4.addConstraint(Sketcher.Constraint("DistanceX", 0, 2, -1, 1, Q("23.75 mm")))
sketch4.addConstraint(Sketcher.Constraint("DistanceY", -1, 1, 0, 2, Q("29.95 mm")))
pocket3 = body.newObject("PartDesign::Pocket", "Pocket002")
pocket3.Profile = sketch4
pocket3.Length = 3
doc.recompute()

linearpattern = body.newObject("PartDesign::LinearPattern", "LinearPattern")
linearpattern.Originals = [pocket3]
linearpattern.Direction = (doc.getObject("X_Axis"), [""])
linearpattern.Mode = "offset"
linearpattern.Offset = 19
linearpattern.Occurrences = 3
body.Tip = linearpattern

# Sketch on XY plane
sketch5 = body.newObject("Sketcher::SketchObject", "Sketch004")
sketch5.AttachmentSupport = (doc.getObject("XY_Plane"), [""])
sketch5.MapMode = "FlatFace"
sketch5.AttachmentOffset = App.Placement(V(0, 0, 1), App.Rotation())
sketch5.addGeometry(Part.LineSegment(V(-23.4, 32.65, 0), V(-23.4, 31.65, 0)), False)
sketch5.addGeometry(Part.LineSegment(V(-23.4, 31.65, 0), V(-22.4, 31.65, 0)), False)
sketch5.addGeometry(Part.LineSegment(V(-22.4, 31.65, 0), V(-22.4, 32.65, 0)), False)
sketch5.addGeometry(Part.LineSegment(V(-22.4, 32.65, 0), V(-23.4, 32.65, 0)), False)
sketch5.addGeometry(Part.LineSegment(V(-16.9, 35.25, 0), V(-16.9, 34.25, 0)), False)
sketch5.addGeometry(Part.LineSegment(V(-16.9, 34.25, 0), V(-15.9, 34.25, 0)), False)
sketch5.addGeometry(Part.LineSegment(V(-15.9, 34.25, 0), V(-15.9, 35.25, 0)), False)
sketch5.addGeometry(Part.LineSegment(V(-15.9, 35.25, 0), V(-16.9, 35.25, 0)), False)
sketch5.addGeometry(Part.LineSegment(V(-23.4, 13.65, 0), V(-23.4, 12.65, 0)), False)
sketch5.addGeometry(Part.LineSegment(V(-23.4, 12.65, 0), V(-22.4, 12.65, 0)), False)
sketch5.addGeometry(Part.LineSegment(V(-22.4, 12.65, 0), V(-22.4, 13.65, 0)), False)
sketch5.addGeometry(Part.LineSegment(V(-22.4, 13.65, 0), V(-23.4, 13.65, 0)), False)
sketch5.addGeometry(Part.LineSegment(V(-16.9, 16.25, 0), V(-16.9, 15.25, 0)), False)
sketch5.addGeometry(Part.LineSegment(V(-16.9, 15.25, 0), V(-15.9, 15.25, 0)), False)
sketch5.addGeometry(Part.LineSegment(V(-15.9, 15.25, 0), V(-15.9, 16.25, 0)), False)
sketch5.addGeometry(Part.LineSegment(V(-15.9, 16.25, 0), V(-16.9, 16.25, 0)), False)
sketch5.addGeometry(Part.LineSegment(V(-23.4, -5.35, 0), V(-23.4, -6.35, 0)), False)
sketch5.addGeometry(Part.LineSegment(V(-23.4, -6.35, 0), V(-22.4, -6.35, 0)), False)
sketch5.addGeometry(Part.LineSegment(V(-22.4, -6.35, 0), V(-22.4, -5.35, 0)), False)
sketch5.addGeometry(Part.LineSegment(V(-22.4, -5.35, 0), V(-23.4, -5.35, 0)), False)
sketch5.addGeometry(Part.LineSegment(V(-16.9, -2.75, 0), V(-16.9, -3.75, 0)), False)
sketch5.addGeometry(Part.LineSegment(V(-16.9, -3.75, 0), V(-15.9, -3.75, 0)), False)
sketch5.addGeometry(Part.LineSegment(V(-15.9, -3.75, 0), V(-15.9, -2.75, 0)), False)
sketch5.addGeometry(Part.LineSegment(V(-15.9, -2.75, 0), V(-16.9, -2.75, 0)), False)
sketch5.addGeometry(Part.LineSegment(V(-23.4, -24.35, 0), V(-23.4, -25.35, 0)), False)
sketch5.addGeometry(Part.LineSegment(V(-23.4, -25.35, 0), V(-22.4, -25.35, 0)), False)
sketch5.addGeometry(Part.LineSegment(V(-22.4, -25.35, 0), V(-22.4, -24.35, 0)), False)
sketch5.addGeometry(Part.LineSegment(V(-22.4, -24.35, 0), V(-23.4, -24.35, 0)), False)
sketch5.addGeometry(Part.LineSegment(V(-16.9, -21.75, 0), V(-16.9, -22.75, 0)), False)
sketch5.addGeometry(Part.LineSegment(V(-16.9, -22.75, 0), V(-15.9, -22.75, 0)), False)
sketch5.addGeometry(Part.LineSegment(V(-15.9, -22.75, 0), V(-15.9, -21.75, 0)), False)
sketch5.addGeometry(Part.LineSegment(V(-15.9, -21.75, 0), V(-16.9, -21.75, 0)), False)
sketch5.addConstraint(Sketcher.Constraint("Coincident", 0, 2, 1, 1))
sketch5.addConstraint(Sketcher.Constraint("Coincident", 1, 2, 2, 1))
sketch5.addConstraint(Sketcher.Constraint("Coincident", 2, 2, 3, 1))
sketch5.addConstraint(Sketcher.Constraint("Coincident", 3, 2, 0, 1))
sketch5.addConstraint(Sketcher.Constraint("Coincident", 4, 2, 5, 1))
sketch5.addConstraint(Sketcher.Constraint("Coincident", 5, 2, 6, 1))
sketch5.addConstraint(Sketcher.Constraint("Coincident", 6, 2, 7, 1))
sketch5.addConstraint(Sketcher.Constraint("Coincident", 7, 2, 4, 1))
sketch5.addConstraint(Sketcher.Constraint("Coincident", 8, 2, 9, 1))
sketch5.addConstraint(Sketcher.Constraint("Coincident", 9, 2, 10, 1))
sketch5.addConstraint(Sketcher.Constraint("Coincident", 10, 2, 11, 1))
sketch5.addConstraint(Sketcher.Constraint("Coincident", 11, 2, 8, 1))
sketch5.addConstraint(Sketcher.Constraint("Coincident", 12, 2, 13, 1))
sketch5.addConstraint(Sketcher.Constraint("Coincident", 13, 2, 14, 1))
sketch5.addConstraint(Sketcher.Constraint("Coincident", 14, 2, 15, 1))
sketch5.addConstraint(Sketcher.Constraint("Coincident", 15, 2, 12, 1))
sketch5.addConstraint(Sketcher.Constraint("Coincident", 16, 2, 17, 1))
sketch5.addConstraint(Sketcher.Constraint("Coincident", 17, 2, 18, 1))
sketch5.addConstraint(Sketcher.Constraint("Coincident", 18, 2, 19, 1))
sketch5.addConstraint(Sketcher.Constraint("Coincident", 19, 2, 16, 1))
sketch5.addConstraint(Sketcher.Constraint("Coincident", 20, 2, 21, 1))
sketch5.addConstraint(Sketcher.Constraint("Coincident", 21, 2, 22, 1))
sketch5.addConstraint(Sketcher.Constraint("Coincident", 22, 2, 23, 1))
sketch5.addConstraint(Sketcher.Constraint("Coincident", 23, 2, 20, 1))
sketch5.addConstraint(Sketcher.Constraint("Coincident", 24, 2, 25, 1))
sketch5.addConstraint(Sketcher.Constraint("Coincident", 25, 2, 26, 1))
sketch5.addConstraint(Sketcher.Constraint("Coincident", 26, 2, 27, 1))
sketch5.addConstraint(Sketcher.Constraint("Coincident", 27, 2, 24, 1))
sketch5.addConstraint(Sketcher.Constraint("Coincident", 28, 2, 29, 1))
sketch5.addConstraint(Sketcher.Constraint("Coincident", 29, 2, 30, 1))
sketch5.addConstraint(Sketcher.Constraint("Coincident", 30, 2, 31, 1))
sketch5.addConstraint(Sketcher.Constraint("Coincident", 31, 2, 28, 1))
sketch5.addConstraint(Sketcher.Constraint("Vertical", 0))
sketch5.addConstraint(Sketcher.Constraint("Horizontal", 1))
sketch5.addConstraint(Sketcher.Constraint("Vertical", 2))
sketch5.addConstraint(Sketcher.Constraint("Horizontal", 3))
sketch5.addConstraint(Sketcher.Constraint("Vertical", 4))
sketch5.addConstraint(Sketcher.Constraint("Horizontal", 5))
sketch5.addConstraint(Sketcher.Constraint("Vertical", 6))
sketch5.addConstraint(Sketcher.Constraint("Horizontal", 7))
sketch5.addConstraint(Sketcher.Constraint("Vertical", 8))
sketch5.addConstraint(Sketcher.Constraint("Horizontal", 9))
sketch5.addConstraint(Sketcher.Constraint("Vertical", 10))
sketch5.addConstraint(Sketcher.Constraint("Horizontal", 11))
sketch5.addConstraint(Sketcher.Constraint("Vertical", 12))
sketch5.addConstraint(Sketcher.Constraint("Horizontal", 13))
sketch5.addConstraint(Sketcher.Constraint("Vertical", 14))
sketch5.addConstraint(Sketcher.Constraint("Horizontal", 15))
sketch5.addConstraint(Sketcher.Constraint("Vertical", 16))
sketch5.addConstraint(Sketcher.Constraint("Horizontal", 17))
sketch5.addConstraint(Sketcher.Constraint("Vertical", 18))
sketch5.addConstraint(Sketcher.Constraint("Horizontal", 19))
sketch5.addConstraint(Sketcher.Constraint("Vertical", 20))
sketch5.addConstraint(Sketcher.Constraint("Horizontal", 21))
sketch5.addConstraint(Sketcher.Constraint("Vertical", 22))
sketch5.addConstraint(Sketcher.Constraint("Horizontal", 23))
sketch5.addConstraint(Sketcher.Constraint("Vertical", 24))
sketch5.addConstraint(Sketcher.Constraint("Horizontal", 25))
sketch5.addConstraint(Sketcher.Constraint("Vertical", 26))
sketch5.addConstraint(Sketcher.Constraint("Horizontal", 27))
sketch5.addConstraint(Sketcher.Constraint("Vertical", 28))
sketch5.addConstraint(Sketcher.Constraint("Horizontal", 29))
sketch5.addConstraint(Sketcher.Constraint("Vertical", 30))
sketch5.addConstraint(Sketcher.Constraint("Horizontal", 31))
sketch5.addConstraint(Sketcher.Constraint("Vertical", 3, 2, 8, 2))
sketch5.addConstraint(Sketcher.Constraint("Vertical", 2, 2, 9, 2))
sketch5.addConstraint(Sketcher.Constraint("Vertical", 7, 2, 12, 2))
sketch5.addConstraint(Sketcher.Constraint("Vertical", 6, 2, 13, 2))
sketch5.addConstraint(Sketcher.Constraint("Vertical", 11, 2, 16, 2))
sketch5.addConstraint(Sketcher.Constraint("Vertical", 10, 2, 17, 2))
sketch5.addConstraint(Sketcher.Constraint("Vertical", 15, 2, 20, 2))
sketch5.addConstraint(Sketcher.Constraint("Vertical", 14, 2, 21, 2))
sketch5.addConstraint(Sketcher.Constraint("Vertical", 19, 2, 24, 2))
sketch5.addConstraint(Sketcher.Constraint("Vertical", 18, 2, 25, 2))
sketch5.addConstraint(Sketcher.Constraint("Vertical", 23, 2, 28, 2))
sketch5.addConstraint(Sketcher.Constraint("Vertical", 22, 2, 29, 2))
sketch5.addConstraint(Sketcher.Constraint("Equal", 3, 5))
sketch5.addConstraint(Sketcher.Constraint("Equal", 31, 0))
sketch5.addConstraint(Sketcher.Constraint("Equal", 2, 4))
sketch5.addConstraint(Sketcher.Constraint("Equal", 6, 8))
sketch5.addConstraint(Sketcher.Constraint("Equal", 10, 12))
sketch5.addConstraint(Sketcher.Constraint("Equal", 14, 16))
sketch5.addConstraint(Sketcher.Constraint("Equal", 18, 20))
sketch5.addConstraint(Sketcher.Constraint("Equal", 22, 24))
sketch5.addConstraint(Sketcher.Constraint("Equal", 26, 28))
sketch5.addConstraint(Sketcher.Constraint("DistanceX", 1, 1, 1, 2, Q("1 mm")))
sketch5.addConstraint(Sketcher.Constraint("DistanceY", 8, 2, 0, 2, Q("19 mm")))
sketch5.addConstraint(Sketcher.Constraint("DistanceY", 16, 2, 8, 2, Q("19 mm")))
sketch5.addConstraint(Sketcher.Constraint("DistanceY", 24, 2, 16, 2, Q("19 mm")))
sketch5.addConstraint(Sketcher.Constraint("DistanceX", 0, 2, -1, 1, Q("23.4 mm")))
sketch5.addConstraint(Sketcher.Constraint("DistanceX", 4, 2, -1, 1, Q("16.9 mm")))
sketch5.addConstraint(Sketcher.Constraint("DistanceY", 2, 2, 4, 2, Q("1.6 mm")))
sketch5.addConstraint(Sketcher.Constraint("DistanceY", 10, 2, 12, 2, Q("1.6 mm")))
sketch5.addConstraint(Sketcher.Constraint("DistanceY", 18, 2, 20, 2, Q("1.6 mm")))
sketch5.addConstraint(Sketcher.Constraint("DistanceY", 26, 2, 28, 2, Q("1.6 mm")))
sketch5.addConstraint(Sketcher.Constraint("DistanceY", -1, 1, 0, 2, Q("31.65 mm")))
pocket4 = body.newObject("PartDesign::Pocket", "Pocket003")
pocket4.Profile = sketch5
pocket4.Length = 5
doc.recompute()

linearpattern2 = body.newObject("PartDesign::LinearPattern", "LinearPattern001")
linearpattern2.Originals = [pocket4]
linearpattern2.Direction = (doc.getObject("X_Axis"), [""])
linearpattern2.Mode = "offset"
linearpattern2.Offset = 19
linearpattern2.Occurrences = 3
body.Tip = linearpattern2
doc.recompute()

fillet = body.newObject("PartDesign::Fillet", "Fillet")
fillet.Base = (linearpattern2, edges_at(linearpattern2, [
    (30, -40, 4.5),
    (30, 40, 4.5),
    (-30, -40, 4.5),
    (-30, 40, 4.5),
]))
fillet.Radius = 3

# Sketch on XY plane
sketch6 = body.newObject("Sketcher::SketchObject", "Sketch005")
sketch6.AttachmentSupport = (doc.getObject("XY_Plane"), [""])
sketch6.MapMode = "FlatFace"
sketch6.AttachmentOffset = App.Placement(V(0, 0, 9), App.Rotation())
sketch6.addGeometry(Part.Circle(V(-26, 36, 0), V(0, 0, 1), 1.6), False)
sketch6.addGeometry(Part.Circle(V(26, 36, 0), V(0, 0, 1), 1.6), False)
sketch6.addGeometry(Part.Circle(V(-26, -36, 0), V(0, 0, 1), 1.6), False)
sketch6.addGeometry(Part.Circle(V(26, -36, 0), V(0, 0, 1), 1.6), False)
sketch6.addConstraint(Sketcher.Constraint("Equal", 0, 1))
sketch6.addConstraint(Sketcher.Constraint("Equal", 1, 2))
sketch6.addConstraint(Sketcher.Constraint("Equal", 2, 3))
sketch6.addConstraint(Sketcher.Constraint("Symmetric", 1, 3, 2, 3, -1, 1))
sketch6.addConstraint(Sketcher.Constraint("Symmetric", 0, 3, 3, 3, -1, 1))
sketch6.addConstraint(Sketcher.Constraint("Symmetric", 0, 3, 1, 3, -2))
sketch6.addConstraint(Sketcher.Constraint("Diameter", 0, Q("3.2 mm")))
sketch6.addConstraint(Sketcher.Constraint("DistanceX", 0, 3, -1, 1, Q("26 mm")))
sketch6.addConstraint(Sketcher.Constraint("DistanceY", -1, 1, 0, 3, Q("36 mm")))
pocket5 = body.newObject("PartDesign::Pocket", "Pocket004")
pocket5.Profile = sketch6
pocket5.Length = 9

# Sketch on XY plane
sketch7 = body.newObject("Sketcher::SketchObject", "Sketch006")
sketch7.AttachmentSupport = (doc.getObject("XY_Plane"), [""])
sketch7.MapMode = "FlatFace"
sketch7.AttachmentOffset = App.Placement(V(0, 0, 9), App.Rotation())
sketch7.addGeometry(Part.Circle(V(-26, 36, 0), V(0, 0, 1), 3), False)
sketch7.addGeometry(Part.Circle(V(26, 36, 0), V(0, 0, 1), 3), False)
sketch7.addGeometry(Part.Circle(V(-26, -36, 0), V(0, 0, 1), 3), False)
sketch7.addGeometry(Part.Circle(V(26, -36, 0), V(0, 0, 1), 3), False)
sketch7.addConstraint(Sketcher.Constraint("Equal", 0, 1))
sketch7.addConstraint(Sketcher.Constraint("Equal", 1, 2))
sketch7.addConstraint(Sketcher.Constraint("Equal", 2, 3))
sketch7.addConstraint(Sketcher.Constraint("Symmetric", 1, 3, 2, 3, -1, 1))
sketch7.addConstraint(Sketcher.Constraint("Symmetric", 0, 3, 3, 3, -1, 1))
sketch7.addConstraint(Sketcher.Constraint("Symmetric", 0, 3, 1, 3, -2))
sketch7.addConstraint(Sketcher.Constraint("Diameter", 0, Q("6 mm")))
sketch7.addConstraint(Sketcher.Constraint("DistanceX", 0, 3, -1, 1, Q("26 mm")))
sketch7.addConstraint(Sketcher.Constraint("DistanceY", -1, 1, 0, 3, Q("36 mm")))
pocket6 = body.newObject("PartDesign::Pocket", "Pocket005")
pocket6.Profile = sketch7
pocket6.Length = 8
body2 = doc.addObject("PartDesign::Body", "Body001")
doc.recompute()

body.Placement = App.Placement(V(0, 0, 10), App.Rotation(V(0, 0, 1), 0))
boolean = body2.newObject("PartDesign::Boolean", "Boolean")
boolean.Type = "Fuse"
boolean.addObjects([body])

doc.recompute()
